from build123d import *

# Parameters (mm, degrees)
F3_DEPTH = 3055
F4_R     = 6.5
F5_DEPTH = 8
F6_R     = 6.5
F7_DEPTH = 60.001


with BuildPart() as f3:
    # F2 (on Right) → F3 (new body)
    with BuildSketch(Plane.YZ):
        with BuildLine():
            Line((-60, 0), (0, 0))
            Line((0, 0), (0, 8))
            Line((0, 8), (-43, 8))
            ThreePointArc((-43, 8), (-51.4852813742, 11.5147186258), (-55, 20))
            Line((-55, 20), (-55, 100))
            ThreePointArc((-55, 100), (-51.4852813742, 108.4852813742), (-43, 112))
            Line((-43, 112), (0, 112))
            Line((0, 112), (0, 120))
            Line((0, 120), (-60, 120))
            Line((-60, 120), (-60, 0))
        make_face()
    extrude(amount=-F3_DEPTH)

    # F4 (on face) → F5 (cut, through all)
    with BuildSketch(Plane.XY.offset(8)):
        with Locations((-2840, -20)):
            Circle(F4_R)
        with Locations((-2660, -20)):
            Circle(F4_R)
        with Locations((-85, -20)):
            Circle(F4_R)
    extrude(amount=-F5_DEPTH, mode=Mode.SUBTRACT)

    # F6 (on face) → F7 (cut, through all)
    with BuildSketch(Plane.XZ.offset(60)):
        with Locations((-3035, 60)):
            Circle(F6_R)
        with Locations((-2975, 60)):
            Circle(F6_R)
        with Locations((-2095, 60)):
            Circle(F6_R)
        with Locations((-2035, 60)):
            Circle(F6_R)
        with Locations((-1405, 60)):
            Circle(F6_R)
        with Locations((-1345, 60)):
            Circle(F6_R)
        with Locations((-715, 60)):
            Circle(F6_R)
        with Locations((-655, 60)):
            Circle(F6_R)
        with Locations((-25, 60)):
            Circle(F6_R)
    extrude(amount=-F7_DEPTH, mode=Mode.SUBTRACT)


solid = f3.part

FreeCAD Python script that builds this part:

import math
import FreeCAD as App
import Part
import Sketcher
Q = App.Units.Quantity

doc = App.newDocument("Part")
body = doc.addObject("PartDesign::Body", "Body")

# Sketch on YZ plane
sketch1 = body.newObject("Sketcher::SketchObject", "Sketch")
sketch1.AttachmentSupport = (doc.getObject("YZ_Plane"), [""])
sketch1.MapMode = "FlatFace"
sketch1.addGeometry(Part.LineSegment(App.Vector(-60, 0, 0), App.Vector(0, 0, 0)), False)
sketch1.addGeometry(Part.LineSegment(App.Vector(0, 0, 0), App.Vector(0, 8, 0)), False)
sketch1.addGeometry(Part.LineSegment(App.Vector(0, 8, 0), App.Vector(-43, 8, 0)), False)
sketch1.addGeometry(Part.ArcOfCircle(Part.Circle(App.Vector(-43, 20, 0), App.Vector(0, 0, 1), 12), math.radians(180), math.radians(270)), False)
sketch1.addGeometry(Part.LineSegment(App.Vector(-55, 20, 0), App.Vector(-55, 100, 0)), False)
sketch1.addGeometry(Part.ArcOfCircle(Part.Circle(App.Vector(-43, 100, 0), App.Vector(0, 0, 1), 12), math.radians(90), math.radians(180)), False)
sketch1.addGeometry(Part.LineSegment(App.Vector(-43, 112, 0), App.Vector(0, 112, 0)), False)
sketch1.addGeometry(Part.LineSegment(App.Vector(0, 112, 0), App.Vector(0, 120, 0)), False)
sketch1.addGeometry(Part.LineSegment(App.Vector(0, 120, 0), App.Vector(-60, 120, 0)), False)
sketch1.addGeometry(Part.LineSegment(App.Vector(-60, 120, 0), App.Vector(-60, 0, 0)), False)
sketch1.addConstraint(Sketcher.Constraint("Coincident", 0, 2, 1, 1))
sketch1.addConstraint(Sketcher.Constraint("Coincident", 1, 2, 2, 1))
sketch1.addConstraint(Sketcher.Constraint("Tangent", 2, 2, 3, 2))
sketch1.addConstraint(Sketcher.Constraint("Tangent", 3, 1, 4, 1))
sketch1.addConstraint(Sketcher.Constraint("Tangent", 4, 2, 5, 2))
sketch1.addConstraint(Sketcher.Constraint("Tangent", 5, 1, 6, 1))
sketch1.addConstraint(Sketcher.Constraint("Coincident", 6, 2, 7, 1))
sketch1.addConstraint(Sketcher.Constraint("Coincident", 7, 2, 8, 1))
sketch1.addConstraint(Sketcher.Constraint("Coincident", 8, 2, 9, 1))
sketch1.addConstraint(Sketcher.Constraint("Coincident", 9, 2, 0, 1))
sketch1.addConstraint(Sketcher.Constraint("Horizontal", 0))
sketch1.addConstraint(Sketcher.Constraint("Vertical", 1))
sketch1.addConstraint(Sketcher.Constraint("Horizontal", 2))
sketch1.addConstraint(Sketcher.Constraint("Vertical", 4))
sketch1.addConstraint(Sketcher.Constraint("Horizontal", 6))
sketch1.addConstraint(Sketcher.Constraint("Vertical", 7))
sketch1.addConstraint(Sketcher.Constraint("Horizontal", 8))
sketch1.addConstraint(Sketcher.Constraint("Vertical", 9))
sketch1.addConstraint(Sketcher.Constraint("Coincident", 0, 2, -1, 1))
sketch1.addConstraint(Sketcher.Constraint("Equal", 3, 5))
sketch1.addConstraint(Sketcher.Constraint("PointOnObject", 6, 2, -2))
sketch1.addConstraint(Sketcher.Constraint("Equal", 1, 7))
sketch1.addConstraint(Sketcher.Constraint("Radius", 3, Q("12 mm")))
sketch1.addConstraint(Sketcher.Constraint("DistanceX", 0, 1, 0, 2, Q("60 mm")))
sketch1.addConstraint(Sketcher.Constraint("DistanceX", 2, 2, 2, 1, Q("43 mm")))
sketch1.addConstraint(Sketcher.Constraint("DistanceY", 1, 1, 1, 2, Q("8 mm")))
sketch1.addConstraint(Sketcher.Constraint("DistanceY", 4, 1, 4, 2, Q("80 mm")))
pad1 = body.newObject("PartDesign::Pad", "Pad")
pad1.Profile = sketch1
pad1.Length = 3055
pad1.Reversed = True

# Sketch on XY plane
sketch2 = body.newObject("Sketcher::SketchObject", "Sketch001")
sketch2.AttachmentSupport = (doc.getObject("XY_Plane"), [""])
sketch2.MapMode = "FlatFace"
sketch2.AttachmentOffset = App.Placement(App.Vector(0, 0, 8), App.Rotation())
sketch2.addGeometry(Part.Circle(App.Vector(-2840, -20, 0), App.Vector(0, 0, 1), 6), False)
sketch2.addGeometry(Part.Circle(App.Vector(-2660, -20, 0), App.Vector(0, 0, 1), 6), False)
sketch2.addGeometry(Part.Circle(App.Vector(-85, -20, 0), App.Vector(0, 0, 1), 6), False)
sketch2.addConstraint(Sketcher.Constraint("Equal", 0, 1))
sketch2.addConstraint(Sketcher.Constraint("Equal", 1, 2))
sketch2.addConstraint(Sketcher.Constraint("Horizontal", 0, 3, 1, 3))
sketch2.addConstraint(Sketcher.Constraint("Horizontal", 1, 3, 2, 3))
sketch2.addConstraint(Sketcher.Constraint("Diameter", 0, Q("13 mm")))
sketch2.addConstraint(Sketcher.Constraint("DistanceX", 0, 3, -1, 1, Q("2840 mm")))
sketch2.addConstraint(Sketcher.Constraint("DistanceY", 0, 3, -1, 1, Q("20 mm")))
sketch2.addConstraint(Sketcher.Constraint("DistanceX", 1, 3, -1, 1, Q("2660 mm")))
sketch2.addConstraint(Sketcher.Constraint("DistanceX", 2, 3, -1, 1, Q("85 mm")))
pocket1 = body.newObject("PartDesign::Pocket", "Pocket")
pocket1.Profile = sketch2
pocket1.Type = "ThroughAll"

# Sketch on XZ plane
sketch3 = body.newObject("Sketcher::SketchObject", "Sketch002")
sketch3.AttachmentSupport = (doc.getObject("XZ_Plane"), [""])
sketch3.MapMode = "FlatFace"
sketch3.AttachmentOffset = App.Placement(App.Vector(0, 0, 60), App.Rotation())
sketch3.addGeometry(Part.Circle(App.Vector(-3035, 60, 0), App.Vector(0, 0, 1), 6), False)
sketch3.addGeometry(Part.Circle(App.Vector(-2975, 60, 0), App.Vector(0, 0, 1), 6), False)
sketch3.addGeometry(Part.Circle(App.Vector(-2095, 60, 0), App.Vector(0, 0, 1), 6), False)
sketch3.addGeometry(Part.Circle(App.Vector(-2035, 60, 0), App.Vector(0, 0, 1), 6), False)
sketch3.addGeometry(Part.Circle(App.Vector(-1405, 60, 0), App.Vector(0, 0, 1), 6), False)
sketch3.addGeometry(Part.Circle(App.Vector(-1345, 60, 0), App.Vector(0, 0, 1), 6), False)
sketch3.addGeometry(Part.Circle(App.Vector(-715, 60, 0), App.Vector(0, 0, 1), 6), False)
sketch3.addGeometry(Part.Circle(App.Vector(-655, 60, 0), App.Vector(0, 0, 1), 6), False)
sketch3.addGeometry(Part.Circle(App.Vector(-25, 60, 0), App.Vector(0, 0, 1), 6), False)
sketch3.addConstraint(Sketcher.Constraint("Equal", 0, 1))
sketch3.addConstraint(Sketcher.Constraint("Equal", 1, 2))
sketch3.addConstraint(Sketcher.Constraint("Equal", 2, 3))
sketch3.addConstraint(Sketcher.Constraint("Equal", 3, 4))
sketch3.addConstraint(Sketcher.Constraint("Equal", 4, 5))
sketch3.addConstraint(Sketcher.Constraint("Equal", 5, 6))
sketch3.addConstraint(Sketcher.Constraint("Equal", 6, 7))
sketch3.addConstraint(Sketcher.Constraint("Equal", 7, 8))
sketch3.addConstraint(Sketcher.Constraint("Horizontal", 0, 3, 1, 3))
sketch3.addConstraint(Sketcher.Constraint("Horizontal", 1, 3, 2, 3))
sketch3.addConstraint(Sketcher.Constraint("Horizontal", 2, 3, 3, 3))
sketch3.addConstraint(Sketcher.Constraint("Horizontal", 3, 3, 4, 3))
sketch3.addConstraint(Sketcher.Constraint("Horizontal", 4, 3, 5, 3))
sketch3.addConstraint(Sketcher.Constraint("Horizontal", 5, 3, 6, 3))
sketch3.addConstraint(Sketcher.Constraint("Horizontal", 6, 3, 7, 3))
sketch3.addConstraint(Sketcher.Constraint("Horizontal", 7, 3, 8, 3))
sketch3.addConstraint(Sketcher.Constraint("Diameter", 0, Q("13 mm")))
sketch3.addConstraint(Sketcher.Constraint("DistanceX", 0, 3, -1, 1, Q("3035 mm")))
sketch3.addConstraint(Sketcher.Constraint("DistanceY", -1, 1, 0, 3, Q("60 mm")))
sketch3.addConstraint(Sketcher.Constraint("DistanceX", 1, 3, -1, 1, Q("2975 mm")))
sketch3.addConstraint(Sketcher.Constraint("DistanceX", 2, 3, -1, 1, Q("2095 mm")))
sketch3.addConstraint(Sketcher.Constraint("DistanceX", 3, 3, -1, 1, Q("2035 mm")))
sketch3.addConstraint(Sketcher.Constraint("DistanceX", 4, 3, -1, 1, Q("1405 mm")))
sketch3.addConstraint(Sketcher.Constraint("DistanceX", 5, 3, -1, 1, Q("1345 mm")))
sketch3.addConstraint(Sketcher.Constraint("DistanceX", 6, 3, -1, 1, Q("715 mm")))
sketch3.addConstraint(Sketcher.Constraint("DistanceX", 7, 3, -1, 1, Q("655 mm")))
sketch3.addConstraint(Sketcher.Constraint("DistanceX", 8, 3, -1, 1, Q("25 mm")))
pocket2 = body.newObject("PartDesign::Pocket", "Pocket001")
pocket2.Profile = sketch3
pocket2.Type = "ThroughAll"

doc.recompute()
